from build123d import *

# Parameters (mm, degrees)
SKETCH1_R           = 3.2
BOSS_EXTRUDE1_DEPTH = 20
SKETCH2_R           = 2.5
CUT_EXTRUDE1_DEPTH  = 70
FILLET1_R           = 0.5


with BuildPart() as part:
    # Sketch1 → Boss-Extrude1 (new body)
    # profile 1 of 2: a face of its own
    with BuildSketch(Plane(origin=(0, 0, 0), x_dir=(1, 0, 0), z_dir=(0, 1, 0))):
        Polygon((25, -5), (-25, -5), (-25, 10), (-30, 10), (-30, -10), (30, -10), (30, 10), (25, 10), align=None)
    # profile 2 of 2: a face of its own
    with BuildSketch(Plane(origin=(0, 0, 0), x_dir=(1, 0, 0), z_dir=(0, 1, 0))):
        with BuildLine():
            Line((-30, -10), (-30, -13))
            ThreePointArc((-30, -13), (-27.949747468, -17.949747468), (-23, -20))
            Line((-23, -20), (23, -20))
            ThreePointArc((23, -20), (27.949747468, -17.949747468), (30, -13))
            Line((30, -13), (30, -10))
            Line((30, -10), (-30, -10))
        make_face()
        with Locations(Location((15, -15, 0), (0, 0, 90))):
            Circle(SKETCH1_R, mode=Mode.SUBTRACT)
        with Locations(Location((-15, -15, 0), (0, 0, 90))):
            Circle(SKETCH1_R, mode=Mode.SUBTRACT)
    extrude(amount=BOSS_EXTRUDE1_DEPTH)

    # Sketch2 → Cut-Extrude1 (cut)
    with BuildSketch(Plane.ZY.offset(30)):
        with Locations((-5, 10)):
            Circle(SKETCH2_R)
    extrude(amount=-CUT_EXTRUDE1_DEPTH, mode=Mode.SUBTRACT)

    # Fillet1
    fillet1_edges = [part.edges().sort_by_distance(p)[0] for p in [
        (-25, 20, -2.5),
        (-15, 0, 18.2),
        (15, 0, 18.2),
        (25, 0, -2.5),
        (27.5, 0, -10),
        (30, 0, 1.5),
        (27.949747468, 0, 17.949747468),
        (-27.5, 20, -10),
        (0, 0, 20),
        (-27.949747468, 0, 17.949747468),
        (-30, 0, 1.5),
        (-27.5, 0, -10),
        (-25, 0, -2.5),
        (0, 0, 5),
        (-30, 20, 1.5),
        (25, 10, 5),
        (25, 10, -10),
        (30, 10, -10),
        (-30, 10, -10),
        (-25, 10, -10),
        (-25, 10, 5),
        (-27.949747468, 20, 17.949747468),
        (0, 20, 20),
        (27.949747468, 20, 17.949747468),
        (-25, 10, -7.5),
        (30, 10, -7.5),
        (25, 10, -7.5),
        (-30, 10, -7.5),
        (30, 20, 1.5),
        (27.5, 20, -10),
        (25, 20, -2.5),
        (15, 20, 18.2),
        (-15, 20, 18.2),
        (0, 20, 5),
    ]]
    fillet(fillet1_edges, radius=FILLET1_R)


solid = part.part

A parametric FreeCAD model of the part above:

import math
import FreeCAD as App
import Part
import Sketcher
Q = App.Units.Quantity

doc = App.newDocument("Part")
body = doc.addObject("PartDesign::Body", "Body")

sketch1 = doc.addObject("Sketcher::SketchObject", "Sketch")
body.addObject(sketch1)
sketch1.AttachmentSupport = (doc.XZ_Plane, [""])
sketch1.MapMode = "FlatFace"
sketch1.addGeometry(Part.LineSegment(App.Vector(25, 5, 0), App.Vector(-25, 5, 0)), False)
sketch1.addGeometry(Part.LineSegment(App.Vector(-25, 5, 0), App.Vector(-25, -10, 0)), False)
sketch1.addGeometry(Part.LineSegment(App.Vector(-25, -10, 0), App.Vector(-30, -10, 0)), False)
sketch1.addGeometry(Part.LineSegment(App.Vector(-30, -10, 0), App.Vector(-30, 13, 0)), False)
sketch1.addGeometry(Part.ArcOfCircle(Part.Circle(App.Vector(-23, 13, 0), App.Vector(0, 0, 1), 7), math.radians(90), math.radians(180)), False)
sketch1.addGeometry(Part.LineSegment(App.Vector(-23, 20, 0), App.Vector(23, 20, 0)), False)
sketch1.addGeometry(Part.ArcOfCircle(Part.Circle(App.Vector(23, 13, 0), App.Vector(0, 0, 1), 7), math.radians(0), math.radians(90)), False)
sketch1.addGeometry(Part.LineSegment(App.Vector(30, 13, 0), App.Vector(30, -10, 0)), False)
sketch1.addGeometry(Part.LineSegment(App.Vector(30, -10, 0), App.Vector(25, -10, 0)), False)
sketch1.addGeometry(Part.LineSegment(App.Vector(25, -10, 0), App.Vector(25, 5, 0)), False)
sketch1.addGeometry(Part.Circle(App.Vector(15, 15, 0), App.Vector(0, 0, 1), 3.2), False)
sketch1.addGeometry(Part.Circle(App.Vector(-15, 15, 0), App.Vector(0, 0, 1), 3.2), False)
sketch1.addConstraint(Sketcher.Constraint("Coincident", 0, 2, 1, 1))
sketch1.addConstraint(Sketcher.Constraint("Coincident", 1, 2, 2, 1))
sketch1.addConstraint(Sketcher.Constraint("Coincident", 2, 2, 3, 1))
sketch1.addConstraint(Sketcher.Constraint("Tangent", 3, 2, 4, 2))
sketch1.addConstraint(Sketcher.Constraint("Tangent", 4, 1, 5, 1))
sketch1.addConstraint(Sketcher.Constraint("Tangent", 5, 2, 6, 2))
sketch1.addConstraint(Sketcher.Constraint("Tangent", 6, 1, 7, 1))
sketch1.addConstraint(Sketcher.Constraint("Coincident", 7, 2, 8, 1))
sketch1.addConstraint(Sketcher.Constraint("Coincident", 8, 2, 9, 1))
sketch1.addConstraint(Sketcher.Constraint("Coincident", 9, 2, 0, 1))
sketch1.addConstraint(Sketcher.Constraint("Horizontal", 0))
sketch1.addConstraint(Sketcher.Constraint("Vertical", 1))
sketch1.addConstraint(Sketcher.Constraint("Horizontal", 2))
sketch1.addConstraint(Sketcher.Constraint("Vertical", 3))
sketch1.addConstraint(Sketcher.Constraint("Horizontal", 5))
sketch1.addConstraint(Sketcher.Constraint("Vertical", 7))
sketch1.addConstraint(Sketcher.Constraint("Horizontal", 8))
sketch1.addConstraint(Sketcher.Constraint("Vertical", 9))
sketch1.addConstraint(Sketcher.Constraint("Equal", 4, 6))
sketch1.addConstraint(Sketcher.Constraint("Equal", 10, 11))
sketch1.addConstraint(Sketcher.Constraint("Symmetric", 10, 3, 11, 3, -2))
sketch1.addConstraint(Sketcher.Constraint("Symmetric", 2, 2, 7, 2, -2))
sketch1.addConstraint(Sketcher.Constraint("Equal", 2, 8))
sketch1.addConstraint(Sketcher.Constraint("Radius", 4, Q("7 mm")))
sketch1.addConstraint(Sketcher.Constraint("Diameter", 10, Q("6.4 mm")))
sketch1.addConstraint(Sketcher.Constraint("DistanceX", 0, 2, 0, 1, Q("50 mm")))
sketch1.addConstraint(Sketcher.Constraint("DistanceX", 2, 2, 2, 1, Q("5 mm")))
sketch1.addConstraint(Sketcher.Constraint("DistanceY", 1, 2, 1, 1, Q("15 mm")))
sketch1.addConstraint(Sketcher.Constraint("DistanceY", 3, 1, 3, 2, Q("23 mm")))
sketch1.addConstraint(Sketcher.Constraint("DistanceY", -1, 1, 4, 3, Q("13 mm")))
sketch1.addConstraint(Sketcher.Constraint("DistanceX", -1, 1, 10, 3, Q("15 mm")))
sketch1.addConstraint(Sketcher.Constraint("DistanceY", -1, 1, 10, 3, Q("15 mm")))
pad1 = doc.addObject("PartDesign::Pad", "Pad")
body.addObject(pad1)
pad1.Profile = sketch1
pad1.Length = 20
pad1.Reversed = True

sketch2 = doc.addObject("Sketcher::SketchObject", "Sketch001")
body.addObject(sketch2)
sketch2.AttachmentSupport = (doc.YZ_Plane, [""])
sketch2.MapMode = "FlatFace"
sketch2.AttachmentOffset = App.Placement(App.Vector(0, 0, -30), App.Rotation())
sketch2.addGeometry(Part.Circle(App.Vector(10, -5, 0), App.Vector(0, 0, 1), 2.5), False)
sketch2.addConstraint(Sketcher.Constraint("Diameter", 0, Q("5 mm")))
sketch2.addConstraint(Sketcher.Constraint("DistanceX", -1, 1, 0, 3, Q("10 mm")))
sketch2.addConstraint(Sketcher.Constraint("DistanceY", 0, 3, -1, 1, Q("5 mm")))
pocket1 = doc.addObject("PartDesign::Pocket", "Pocket")
body.addObject(pocket1)
pocket1.Profile = sketch2
pocket1.Length = 70
pocket1.Reversed = True
doc.recompute()

fillet = doc.addObject("PartDesign::Fillet", "Fillet")
body.addObject(fillet)
fillet.Base = (pocket1, ["Edge1"])
fillet.UseAllEdges = True
fillet.Radius = 0.5

doc.recompute()
